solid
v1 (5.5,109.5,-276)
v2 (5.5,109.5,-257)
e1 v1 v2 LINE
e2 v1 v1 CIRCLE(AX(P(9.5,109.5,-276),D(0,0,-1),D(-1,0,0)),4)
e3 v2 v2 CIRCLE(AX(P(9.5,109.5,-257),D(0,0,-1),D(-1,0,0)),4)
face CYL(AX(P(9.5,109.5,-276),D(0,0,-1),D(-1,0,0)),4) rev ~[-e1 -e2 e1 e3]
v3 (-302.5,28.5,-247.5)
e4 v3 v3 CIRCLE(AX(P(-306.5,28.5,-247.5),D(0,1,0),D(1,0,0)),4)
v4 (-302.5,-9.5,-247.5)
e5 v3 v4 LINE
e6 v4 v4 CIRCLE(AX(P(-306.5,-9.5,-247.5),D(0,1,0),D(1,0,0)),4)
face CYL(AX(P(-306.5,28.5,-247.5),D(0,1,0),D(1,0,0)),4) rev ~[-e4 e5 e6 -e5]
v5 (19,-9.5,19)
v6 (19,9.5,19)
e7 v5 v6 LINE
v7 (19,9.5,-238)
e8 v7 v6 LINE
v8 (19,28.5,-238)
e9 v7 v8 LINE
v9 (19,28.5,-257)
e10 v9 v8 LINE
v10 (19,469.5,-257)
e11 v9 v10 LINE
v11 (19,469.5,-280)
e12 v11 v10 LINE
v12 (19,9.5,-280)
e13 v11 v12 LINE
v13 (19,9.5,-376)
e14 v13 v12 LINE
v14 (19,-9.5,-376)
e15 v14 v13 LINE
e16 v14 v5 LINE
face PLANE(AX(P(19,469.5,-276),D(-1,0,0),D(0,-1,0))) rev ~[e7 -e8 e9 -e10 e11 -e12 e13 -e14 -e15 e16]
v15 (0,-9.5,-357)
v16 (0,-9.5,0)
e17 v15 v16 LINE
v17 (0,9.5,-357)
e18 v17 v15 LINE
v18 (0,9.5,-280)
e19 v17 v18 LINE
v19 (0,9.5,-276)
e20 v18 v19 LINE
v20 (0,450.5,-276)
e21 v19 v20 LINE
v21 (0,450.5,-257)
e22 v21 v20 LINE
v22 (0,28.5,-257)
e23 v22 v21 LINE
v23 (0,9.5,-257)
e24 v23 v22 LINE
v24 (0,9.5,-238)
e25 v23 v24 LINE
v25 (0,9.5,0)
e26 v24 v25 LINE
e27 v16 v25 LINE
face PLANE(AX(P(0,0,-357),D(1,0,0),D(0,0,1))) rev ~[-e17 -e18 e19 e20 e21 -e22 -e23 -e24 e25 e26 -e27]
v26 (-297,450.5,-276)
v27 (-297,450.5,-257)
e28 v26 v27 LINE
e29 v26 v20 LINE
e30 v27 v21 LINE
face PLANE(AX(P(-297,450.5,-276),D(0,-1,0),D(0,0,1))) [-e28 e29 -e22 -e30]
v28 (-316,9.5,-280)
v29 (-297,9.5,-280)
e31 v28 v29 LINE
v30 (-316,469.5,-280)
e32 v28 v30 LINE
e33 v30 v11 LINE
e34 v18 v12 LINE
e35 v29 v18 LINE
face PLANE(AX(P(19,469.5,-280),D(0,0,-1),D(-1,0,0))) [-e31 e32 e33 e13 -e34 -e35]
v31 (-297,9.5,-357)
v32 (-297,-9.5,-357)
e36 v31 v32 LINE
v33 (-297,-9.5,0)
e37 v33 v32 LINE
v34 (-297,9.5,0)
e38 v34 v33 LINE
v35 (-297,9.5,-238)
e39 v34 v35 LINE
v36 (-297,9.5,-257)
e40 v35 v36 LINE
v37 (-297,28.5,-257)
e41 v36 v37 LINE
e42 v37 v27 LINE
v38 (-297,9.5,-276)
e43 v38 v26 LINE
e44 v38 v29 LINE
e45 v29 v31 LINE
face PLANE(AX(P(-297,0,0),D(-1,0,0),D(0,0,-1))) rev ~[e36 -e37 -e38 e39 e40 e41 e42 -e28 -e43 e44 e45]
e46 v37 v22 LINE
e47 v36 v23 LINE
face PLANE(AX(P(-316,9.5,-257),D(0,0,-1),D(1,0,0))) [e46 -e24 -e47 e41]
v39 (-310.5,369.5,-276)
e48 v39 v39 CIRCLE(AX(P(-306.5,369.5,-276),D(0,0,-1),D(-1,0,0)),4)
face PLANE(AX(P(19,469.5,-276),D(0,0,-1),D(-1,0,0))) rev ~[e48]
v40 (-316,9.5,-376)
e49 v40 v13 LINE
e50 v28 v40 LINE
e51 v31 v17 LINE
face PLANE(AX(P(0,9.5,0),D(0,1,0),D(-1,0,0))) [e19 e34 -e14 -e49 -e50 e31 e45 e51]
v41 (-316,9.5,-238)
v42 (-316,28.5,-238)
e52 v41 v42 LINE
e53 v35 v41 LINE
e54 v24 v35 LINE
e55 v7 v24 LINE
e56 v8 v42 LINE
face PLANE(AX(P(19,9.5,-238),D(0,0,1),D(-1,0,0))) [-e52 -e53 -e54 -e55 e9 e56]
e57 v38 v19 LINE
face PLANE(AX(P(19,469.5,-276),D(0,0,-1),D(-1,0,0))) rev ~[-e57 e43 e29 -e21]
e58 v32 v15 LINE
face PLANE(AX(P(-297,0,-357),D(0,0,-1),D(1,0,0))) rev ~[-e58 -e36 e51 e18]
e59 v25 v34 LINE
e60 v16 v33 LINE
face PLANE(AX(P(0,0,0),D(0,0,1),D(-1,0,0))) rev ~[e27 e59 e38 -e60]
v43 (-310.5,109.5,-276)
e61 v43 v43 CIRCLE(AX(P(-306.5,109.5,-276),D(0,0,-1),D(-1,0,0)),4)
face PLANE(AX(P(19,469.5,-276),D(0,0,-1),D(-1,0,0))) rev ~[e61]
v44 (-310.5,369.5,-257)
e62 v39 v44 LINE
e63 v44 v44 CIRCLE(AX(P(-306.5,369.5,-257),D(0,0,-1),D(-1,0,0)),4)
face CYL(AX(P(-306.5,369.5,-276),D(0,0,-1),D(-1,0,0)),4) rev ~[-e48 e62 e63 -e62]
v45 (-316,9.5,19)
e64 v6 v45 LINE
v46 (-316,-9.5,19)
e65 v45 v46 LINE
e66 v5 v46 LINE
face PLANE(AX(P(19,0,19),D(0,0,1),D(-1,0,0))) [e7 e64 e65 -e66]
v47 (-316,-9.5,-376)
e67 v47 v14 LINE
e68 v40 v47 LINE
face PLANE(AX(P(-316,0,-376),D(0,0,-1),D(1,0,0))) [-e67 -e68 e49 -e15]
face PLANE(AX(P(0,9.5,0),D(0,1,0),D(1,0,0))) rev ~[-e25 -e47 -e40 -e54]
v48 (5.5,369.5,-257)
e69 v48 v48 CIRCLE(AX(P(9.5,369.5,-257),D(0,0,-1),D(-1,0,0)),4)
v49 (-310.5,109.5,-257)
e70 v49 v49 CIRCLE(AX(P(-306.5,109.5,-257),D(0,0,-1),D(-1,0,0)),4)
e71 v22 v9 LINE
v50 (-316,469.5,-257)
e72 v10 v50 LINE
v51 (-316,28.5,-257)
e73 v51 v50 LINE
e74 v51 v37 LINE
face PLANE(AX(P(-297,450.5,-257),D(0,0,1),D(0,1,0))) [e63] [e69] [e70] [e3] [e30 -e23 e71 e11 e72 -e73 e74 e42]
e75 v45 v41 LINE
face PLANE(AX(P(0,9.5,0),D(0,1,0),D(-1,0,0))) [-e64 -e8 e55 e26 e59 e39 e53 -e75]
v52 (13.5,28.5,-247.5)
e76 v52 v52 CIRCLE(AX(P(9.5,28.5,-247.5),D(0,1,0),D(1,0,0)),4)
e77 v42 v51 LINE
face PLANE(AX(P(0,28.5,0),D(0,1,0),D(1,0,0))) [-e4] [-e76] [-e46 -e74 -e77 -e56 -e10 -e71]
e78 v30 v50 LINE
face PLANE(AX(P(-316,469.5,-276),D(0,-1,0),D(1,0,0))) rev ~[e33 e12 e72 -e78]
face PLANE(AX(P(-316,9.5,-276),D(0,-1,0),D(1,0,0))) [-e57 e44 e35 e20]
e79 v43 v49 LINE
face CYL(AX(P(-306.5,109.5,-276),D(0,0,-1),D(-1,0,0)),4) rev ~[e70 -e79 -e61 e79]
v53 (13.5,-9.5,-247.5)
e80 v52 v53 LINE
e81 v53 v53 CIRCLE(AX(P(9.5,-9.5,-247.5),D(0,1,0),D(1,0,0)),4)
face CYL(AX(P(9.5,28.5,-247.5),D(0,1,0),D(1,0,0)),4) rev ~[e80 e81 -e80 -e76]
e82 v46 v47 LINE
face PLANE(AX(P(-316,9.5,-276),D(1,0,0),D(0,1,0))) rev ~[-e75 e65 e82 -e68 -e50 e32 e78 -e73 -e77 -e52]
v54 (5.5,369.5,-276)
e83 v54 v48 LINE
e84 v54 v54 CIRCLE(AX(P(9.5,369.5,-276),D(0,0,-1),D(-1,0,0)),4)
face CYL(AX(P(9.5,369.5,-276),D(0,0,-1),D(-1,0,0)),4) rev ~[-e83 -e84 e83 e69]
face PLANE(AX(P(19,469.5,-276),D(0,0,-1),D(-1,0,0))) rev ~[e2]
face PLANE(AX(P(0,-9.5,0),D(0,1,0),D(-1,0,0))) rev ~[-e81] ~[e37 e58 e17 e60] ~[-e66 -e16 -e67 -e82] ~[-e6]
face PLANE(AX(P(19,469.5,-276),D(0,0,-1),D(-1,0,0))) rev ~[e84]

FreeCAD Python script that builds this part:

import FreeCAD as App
import Part
import Sketcher
from FreeCAD import Vector

doc = App.newDocument("Part")
body = doc.addObject("PartDesign::Body", "Body")

# Sketch on XZ plane
sketch1 = doc.addObject("Sketcher::SketchObject", "Sketch")
body.addObject(sketch1)
sketch1.AttachmentSupport = (doc.XZ_Plane, [""])
sketch1.MapMode = "FlatFace"
sketch1.addGeometry(Part.LineSegment(Vector(-316, 19, 0), Vector(19, 19, 0)), False)
sketch1.addGeometry(Part.LineSegment(Vector(19, 19, 0), Vector(19, -376, 0)), False)
sketch1.addGeometry(Part.LineSegment(Vector(19, -376, 0), Vector(-316, -376, 0)), False)
sketch1.addGeometry(Part.LineSegment(Vector(-316, -376, 0), Vector(-316, 19, 0)), False)
sketch1.addGeometry(Part.LineSegment(Vector(0, -357, 0), Vector(0, 0, 0)), False)
sketch1.addGeometry(Part.LineSegment(Vector(0, 0, 0), Vector(-297, 0, 0)), False)
sketch1.addGeometry(Part.LineSegment(Vector(-297, 0, 0), Vector(-297, -357, 0)), False)
sketch1.addGeometry(Part.LineSegment(Vector(-297, -357, 0), Vector(0, -357, 0)), False)
sketch1.addConstraint(Sketcher.Constraint("Coincident", 0, 2, 1, 1))
sketch1.addConstraint(Sketcher.Constraint("Coincident", 1, 2, 2, 1))
sketch1.addConstraint(Sketcher.Constraint("Coincident", 2, 2, 3, 1))
sketch1.addConstraint(Sketcher.Constraint("Coincident", 3, 2, 0, 1))
sketch1.addConstraint(Sketcher.Constraint("Coincident", 4, 2, 5, 1))
sketch1.addConstraint(Sketcher.Constraint("Coincident", 5, 2, 6, 1))
sketch1.addConstraint(Sketcher.Constraint("Coincident", 6, 2, 7, 1))
sketch1.addConstraint(Sketcher.Constraint("Coincident", 7, 2, 4, 1))
sketch1.addConstraint(Sketcher.Constraint("Horizontal", 0))
sketch1.addConstraint(Sketcher.Constraint("Vertical", 1))
sketch1.addConstraint(Sketcher.Constraint("Horizontal", 2))
sketch1.addConstraint(Sketcher.Constraint("Vertical", 3))
sketch1.addConstraint(Sketcher.Constraint("Vertical", 4))
sketch1.addConstraint(Sketcher.Constraint("Horizontal", 5))
sketch1.addConstraint(Sketcher.Constraint("Vertical", 6))
sketch1.addConstraint(Sketcher.Constraint("Horizontal", 7))
sketch1.addConstraint(Sketcher.Constraint("Coincident", 4, 2, -1, 1))
sketch1.addConstraint(Sketcher.Constraint("DistanceX", 0, 1, 0, 2, 335.0))
sketch1.addConstraint(Sketcher.Constraint("DistanceY", 1, 2, 1, 1, 395.0))
sketch1.addConstraint(Sketcher.Constraint("DistanceX", -1, 1, 0, 2, 19.0))
sketch1.addConstraint(Sketcher.Constraint("DistanceY", -1, 1, 0, 2, 19.0))
sketch1.addConstraint(Sketcher.Constraint("DistanceX", 3, 2, 5, 2, 19.0))
sketch1.addConstraint(Sketcher.Constraint("DistanceY", 2, 2, 6, 2, 19.0))
pad1 = doc.addObject("PartDesign::Pad", "Pad")
body.addObject(pad1)
pad1.Profile = sketch1
pad1.Length = 19
pad1.Midplane = True

# Sketch on XZ plane
sketch2 = doc.addObject("Sketcher::SketchObject", "Sketch001")
body.addObject(sketch2)
sketch2.AttachmentSupport = (doc.XZ_Plane, [""])
sketch2.MapMode = "FlatFace"
sketch2.AttachmentOffset = App.Placement(Vector(0, 0, -9.5), App.Rotation())
sketch2.addGeometry(Part.LineSegment(Vector(-297, -276, 0), Vector(-316, -276, 0)), False)
sketch2.addGeometry(Part.LineSegment(Vector(-316, -276, 0), Vector(-316, -257, 0)), False)
sketch2.addGeometry(Part.LineSegment(Vector(-316, -257, 0), Vector(-297, -257, 0)), False)
sketch2.addGeometry(Part.LineSegment(Vector(-297, -257, 0), Vector(-297, -276, 0)), False)
sketch2.addGeometry(Part.LineSegment(Vector(19, -257, 0), Vector(19, -276, 0)), False)
sketch2.addGeometry(Part.LineSegment(Vector(19, -276, 0), Vector(0, -276, 0)), False)
sketch2.addGeometry(Part.LineSegment(Vector(0, -276, 0), Vector(0, -257, 0)), False)
sketch2.addGeometry(Part.LineSegment(Vector(0, -257, 0), Vector(19, -257, 0)), False)
sketch2.addConstraint(Sketcher.Constraint("Coincident", 0, 2, 1, 1))
sketch2.addConstraint(Sketcher.Constraint("Coincident", 1, 2, 2, 1))
sketch2.addConstraint(Sketcher.Constraint("Coincident", 2, 2, 3, 1))
sketch2.addConstraint(Sketcher.Constraint("Coincident", 3, 2, 0, 1))
sketch2.addConstraint(Sketcher.Constraint("Coincident", 4, 2, 5, 1))
sketch2.addConstraint(Sketcher.Constraint("Coincident", 5, 2, 6, 1))
sketch2.addConstraint(Sketcher.Constraint("Coincident", 6, 2, 7, 1))
sketch2.addConstraint(Sketcher.Constraint("Coincident", 7, 2, 4, 1))
sketch2.addConstraint(Sketcher.Constraint("Horizontal", 0))
sketch2.addConstraint(Sketcher.Constraint("Vertical", 1))
sketch2.addConstraint(Sketcher.Constraint("Horizontal", 2))
sketch2.addConstraint(Sketcher.Constraint("Vertical", 3))
sketch2.addConstraint(Sketcher.Constraint("Vertical", 4))
sketch2.addConstraint(Sketcher.Constraint("Horizontal", 5))
sketch2.addConstraint(Sketcher.Constraint("Vertical", 6))
sketch2.addConstraint(Sketcher.Constraint("Horizontal", 7))
sketch2.addConstraint(Sketcher.Constraint("PointOnObject", 5, 2, -2))
sketch2.addConstraint(Sketcher.Constraint("Horizontal", 3, 2, 4, 2))
sketch2.addConstraint(Sketcher.Constraint("Horizontal", 2, 2, 6, 2))
sketch2.addConstraint(Sketcher.Constraint("Equal", 2, 5))
sketch2.addConstraint(Sketcher.Constraint("Equal", 7, 1))
sketch2.addConstraint(Sketcher.Constraint("DistanceX", 0, 2, 0, 1, 19.0))
sketch2.addConstraint(Sketcher.Constraint("DistanceX", 0, 2, -1, 1, 316.0))
sketch2.addConstraint(Sketcher.Constraint("DistanceY", 0, 2, -1, 1, 276.0))
pad2 = doc.addObject("PartDesign::Pad", "Pad001")
body.addObject(pad2)
pad2.Profile = sketch2
pad2.Length = 460
pad2.Reversed = True

# Sketch on YZ plane
sketch3 = doc.addObject("Sketcher::SketchObject", "Sketch002")
body.addObject(sketch3)
sketch3.AttachmentSupport = (doc.YZ_Plane, [""])
sketch3.MapMode = "FlatFace"
sketch3.AttachmentOffset = App.Placement(Vector(0, 0, -297), App.Rotation())
sketch3.addGeometry(Part.LineSegment(Vector(470, -257, 0), Vector(450, -257, 0)), False)
sketch3.addGeometry(Part.LineSegment(Vector(450, -257, 0), Vector(450, -276, 0)), False)
sketch3.addGeometry(Part.LineSegment(Vector(450, -276, 0), Vector(470, -276, 0)), False)
sketch3.addGeometry(Part.LineSegment(Vector(470, -276, 0), Vector(470, -257, 0)), False)
sketch3.addConstraint(Sketcher.Constraint("Coincident", 0, 2, 1, 1))
sketch3.addConstraint(Sketcher.Constraint("Coincident", 1, 2, 2, 1))
sketch3.addConstraint(Sketcher.Constraint("Coincident", 2, 2, 3, 1))
sketch3.addConstraint(Sketcher.Constraint("Coincident", 3, 2, 0, 1))
sketch3.addConstraint(Sketcher.Constraint("Horizontal", 0))
sketch3.addConstraint(Sketcher.Constraint("Vertical", 1))
sketch3.addConstraint(Sketcher.Constraint("Horizontal", 2))
sketch3.addConstraint(Sketcher.Constraint("Vertical", 3))
sketch3.addConstraint(Sketcher.Constraint("Equal", 2, 1))
sketch3.addConstraint(Sketcher.Constraint("DistanceX", 0, 2, 0, 1, 19.0))
sketch3.addConstraint(Sketcher.Constraint("DistanceY", 0, 2, -1, 1, 257.0))
sketch3.addConstraint(Sketcher.Constraint("DistanceX", -1, 1, 0, 2, 450.5))
pad3 = doc.addObject("PartDesign::Pad", "Pad002")
body.addObject(pad3)
pad3.Profile = sketch3
pad3.Length = 316

# Sketch on XY plane
sketch4 = doc.addObject("Sketcher::SketchObject", "Sketch003")
body.addObject(sketch4)
sketch4.AttachmentSupport = (doc.XY_Plane, [""])
sketch4.MapMode = "FlatFace"
sketch4.AttachmentOffset = App.Placement(Vector(0, 0, -276), App.Rotation())
sketch4.addGeometry(Part.Circle(Vector(9.5, 369.5, 0), Vector(0, 0, 1), 4), False)
sketch4.addGeometry(Part.Circle(Vector(-306.5, 369.5, 0), Vector(0, 0, 1), 4), False)
sketch4.addGeometry(Part.Circle(Vector(9.5, 109.5, 0), Vector(0, 0, 1), 4), False)
sketch4.addGeometry(Part.Circle(Vector(-306.5, 109.5, 0), Vector(0, 0, 1), 4), False)
sketch4.addConstraint(Sketcher.Constraint("Equal", 0, 1))
sketch4.addConstraint(Sketcher.Constraint("Equal", 1, 2))
sketch4.addConstraint(Sketcher.Constraint("Equal", 2, 3))
sketch4.addConstraint(Sketcher.Constraint("Horizontal", 0, 3, 1, 3))
sketch4.addConstraint(Sketcher.Constraint("Horizontal", 2, 3, 3, 3))
sketch4.addConstraint(Sketcher.Constraint("Vertical", 0, 3, 2, 3))
sketch4.addConstraint(Sketcher.Constraint("Vertical", 1, 3, 3, 3))
sketch4.addConstraint(Sketcher.Constraint("Diameter", 0, 8.0))
sketch4.addConstraint(Sketcher.Constraint("DistanceX", -1, 1, 0, 3, 9.5))
sketch4.addConstraint(Sketcher.Constraint("DistanceX", 1, 3, 0, 3, 316.0))
sketch4.addConstraint(Sketcher.Constraint("DistanceY", 2, 3, 0, 3, 260.0))
sketch4.addConstraint(Sketcher.Constraint("DistanceY", -1, 1, 0, 3, 369.5))
pocket1 = doc.addObject("PartDesign::Pocket", "Pocket")
body.addObject(pocket1)
pocket1.Profile = sketch4
pocket1.Length = 19
pocket1.Reversed = True

# Sketch on XZ plane
sketch5 = doc.addObject("Sketcher::SketchObject", "Sketch004")
body.addObject(sketch5)
sketch5.AttachmentSupport = (doc.XZ_Plane, [""])
sketch5.MapMode = "FlatFace"
sketch5.AttachmentOffset = App.Placement(Vector(0, 0, -9.5), App.Rotation())
sketch5.addGeometry(Part.LineSegment(Vector(19, -238, 0), Vector(19, -257, 0)), False)
sketch5.addGeometry(Part.LineSegment(Vector(19, -257, 0), Vector(-316, -257, 0)), False)
sketch5.addGeometry(Part.LineSegment(Vector(-316, -257, 0), Vector(-316, -238, 0)), False)
sketch5.addGeometry(Part.LineSegment(Vector(-316, -238, 0), Vector(19, -238, 0)), False)
sketch5.addConstraint(Sketcher.Constraint("Coincident", 0, 2, 1, 1))
sketch5.addConstraint(Sketcher.Constraint("Coincident", 1, 2, 2, 1))
sketch5.addConstraint(Sketcher.Constraint("Coincident", 2, 2, 3, 1))
sketch5.addConstraint(Sketcher.Constraint("Coincident", 3, 2, 0, 1))
sketch5.addConstraint(Sketcher.Constraint("Vertical", 0))
sketch5.addConstraint(Sketcher.Constraint("Horizontal", 1))
sketch5.addConstraint(Sketcher.Constraint("Vertical", 2))
sketch5.addConstraint(Sketcher.Constraint("Horizontal", 3))
sketch5.addConstraint(Sketcher.Constraint("DistanceX", 1, 2, 1, 1, 335.0))
sketch5.addConstraint(Sketcher.Constraint("DistanceY", 0, 2, 0, 1, 19.0))
sketch5.addConstraint(Sketcher.Constraint("DistanceX", -1, 1, 0, 2, 19.0))
sketch5.addConstraint(Sketcher.Constraint("DistanceY", 0, 2, -1, 1, 257.0))
pad4 = doc.addObject("PartDesign::Pad", "Pad003")
body.addObject(pad4)
pad4.Profile = sketch5
pad4.Length = 19
pad4.Reversed = True

# Sketch on XZ plane
sketch6 = doc.addObject("Sketcher::SketchObject", "Sketch005")
body.addObject(sketch6)
sketch6.AttachmentSupport = (doc.XZ_Plane, [""])
sketch6.MapMode = "FlatFace"
sketch6.AttachmentOffset = App.Placement(Vector(0, 0, -28.5), App.Rotation())
sketch6.addGeometry(Part.Circle(Vector(-306.5, -247.5, 0), Vector(0, 0, 1), 4), False)
sketch6.addGeometry(Part.Circle(Vector(9.5, -247.5, 0), Vector(0, 0, 1), 4), False)
sketch6.addConstraint(Sketcher.Constraint("Equal", 0, 1))
sketch6.addConstraint(Sketcher.Constraint("Horizontal", 0, 3, 1, 3))
sketch6.addConstraint(Sketcher.Constraint("Diameter", 0, 8.0))
sketch6.addConstraint(Sketcher.Constraint("DistanceX", -1, 1, 1, 3, 9.5))
sketch6.addConstraint(Sketcher.Constraint("DistanceX", 0, 3, 1, 3, 316.0))
sketch6.addConstraint(Sketcher.Constraint("DistanceY", 0, 3, -1, 1, 247.5))
pocket2 = doc.addObject("PartDesign::Pocket", "Pocket001")
body.addObject(pocket2)
pocket2.Profile = sketch6
pocket2.Length = 39
pocket2.Reversed = True

# Sketch on XY plane
sketch7 = doc.addObject("Sketcher::SketchObject", "Sketch006")
body.addObject(sketch7)
sketch7.AttachmentSupport = (doc.XY_Plane, [""])
sketch7.MapMode = "FlatFace"
sketch7.AttachmentOffset = App.Placement(Vector(0, 0, -276), App.Rotation())
sketch7.addGeometry(Part.LineSegment(Vector(19, 10, 0), Vector(-316, 10, 0)), False)
sketch7.addGeometry(Part.LineSegment(Vector(-316, 10, 0), Vector(-316, 470, 0)), False)
sketch7.addGeometry(Part.LineSegment(Vector(-316, 470, 0), Vector(19, 470, 0)), False)
sketch7.addGeometry(Part.LineSegment(Vector(19, 470, 0), Vector(19, 10, 0)), False)
sketch7.addConstraint(Sketcher.Constraint("Coincident", 0, 2, 1, 1))
sketch7.addConstraint(Sketcher.Constraint("Coincident", 1, 2, 2, 1))
sketch7.addConstraint(Sketcher.Constraint("Coincident", 2, 2, 3, 1))
sketch7.addConstraint(Sketcher.Constraint("Coincident", 3, 2, 0, 1))
sketch7.addConstraint(Sketcher.Constraint("Horizontal", 0))
sketch7.addConstraint(Sketcher.Constraint("Vertical", 1))
sketch7.addConstraint(Sketcher.Constraint("Horizontal", 2))
sketch7.addConstraint(Sketcher.Constraint("Vertical", 3))
sketch7.addConstraint(Sketcher.Constraint("DistanceX", 0, 2, 0, 1, 335.0))
sketch7.addConstraint(Sketcher.Constraint("DistanceY", 1, 1, 1, 2, 460.0))
sketch7.addConstraint(Sketcher.Constraint("DistanceX", 0, 2, -1, 1, 316.0))
sketch7.addConstraint(Sketcher.Constraint("DistanceY", -1, 1, 0, 2, 9.5))
pad5 = doc.addObject("PartDesign::Pad", "Pad004")
body.addObject(pad5)
pad5.Profile = sketch7
pad5.Length = 4
pad5.Reversed = True

doc.recompute()
